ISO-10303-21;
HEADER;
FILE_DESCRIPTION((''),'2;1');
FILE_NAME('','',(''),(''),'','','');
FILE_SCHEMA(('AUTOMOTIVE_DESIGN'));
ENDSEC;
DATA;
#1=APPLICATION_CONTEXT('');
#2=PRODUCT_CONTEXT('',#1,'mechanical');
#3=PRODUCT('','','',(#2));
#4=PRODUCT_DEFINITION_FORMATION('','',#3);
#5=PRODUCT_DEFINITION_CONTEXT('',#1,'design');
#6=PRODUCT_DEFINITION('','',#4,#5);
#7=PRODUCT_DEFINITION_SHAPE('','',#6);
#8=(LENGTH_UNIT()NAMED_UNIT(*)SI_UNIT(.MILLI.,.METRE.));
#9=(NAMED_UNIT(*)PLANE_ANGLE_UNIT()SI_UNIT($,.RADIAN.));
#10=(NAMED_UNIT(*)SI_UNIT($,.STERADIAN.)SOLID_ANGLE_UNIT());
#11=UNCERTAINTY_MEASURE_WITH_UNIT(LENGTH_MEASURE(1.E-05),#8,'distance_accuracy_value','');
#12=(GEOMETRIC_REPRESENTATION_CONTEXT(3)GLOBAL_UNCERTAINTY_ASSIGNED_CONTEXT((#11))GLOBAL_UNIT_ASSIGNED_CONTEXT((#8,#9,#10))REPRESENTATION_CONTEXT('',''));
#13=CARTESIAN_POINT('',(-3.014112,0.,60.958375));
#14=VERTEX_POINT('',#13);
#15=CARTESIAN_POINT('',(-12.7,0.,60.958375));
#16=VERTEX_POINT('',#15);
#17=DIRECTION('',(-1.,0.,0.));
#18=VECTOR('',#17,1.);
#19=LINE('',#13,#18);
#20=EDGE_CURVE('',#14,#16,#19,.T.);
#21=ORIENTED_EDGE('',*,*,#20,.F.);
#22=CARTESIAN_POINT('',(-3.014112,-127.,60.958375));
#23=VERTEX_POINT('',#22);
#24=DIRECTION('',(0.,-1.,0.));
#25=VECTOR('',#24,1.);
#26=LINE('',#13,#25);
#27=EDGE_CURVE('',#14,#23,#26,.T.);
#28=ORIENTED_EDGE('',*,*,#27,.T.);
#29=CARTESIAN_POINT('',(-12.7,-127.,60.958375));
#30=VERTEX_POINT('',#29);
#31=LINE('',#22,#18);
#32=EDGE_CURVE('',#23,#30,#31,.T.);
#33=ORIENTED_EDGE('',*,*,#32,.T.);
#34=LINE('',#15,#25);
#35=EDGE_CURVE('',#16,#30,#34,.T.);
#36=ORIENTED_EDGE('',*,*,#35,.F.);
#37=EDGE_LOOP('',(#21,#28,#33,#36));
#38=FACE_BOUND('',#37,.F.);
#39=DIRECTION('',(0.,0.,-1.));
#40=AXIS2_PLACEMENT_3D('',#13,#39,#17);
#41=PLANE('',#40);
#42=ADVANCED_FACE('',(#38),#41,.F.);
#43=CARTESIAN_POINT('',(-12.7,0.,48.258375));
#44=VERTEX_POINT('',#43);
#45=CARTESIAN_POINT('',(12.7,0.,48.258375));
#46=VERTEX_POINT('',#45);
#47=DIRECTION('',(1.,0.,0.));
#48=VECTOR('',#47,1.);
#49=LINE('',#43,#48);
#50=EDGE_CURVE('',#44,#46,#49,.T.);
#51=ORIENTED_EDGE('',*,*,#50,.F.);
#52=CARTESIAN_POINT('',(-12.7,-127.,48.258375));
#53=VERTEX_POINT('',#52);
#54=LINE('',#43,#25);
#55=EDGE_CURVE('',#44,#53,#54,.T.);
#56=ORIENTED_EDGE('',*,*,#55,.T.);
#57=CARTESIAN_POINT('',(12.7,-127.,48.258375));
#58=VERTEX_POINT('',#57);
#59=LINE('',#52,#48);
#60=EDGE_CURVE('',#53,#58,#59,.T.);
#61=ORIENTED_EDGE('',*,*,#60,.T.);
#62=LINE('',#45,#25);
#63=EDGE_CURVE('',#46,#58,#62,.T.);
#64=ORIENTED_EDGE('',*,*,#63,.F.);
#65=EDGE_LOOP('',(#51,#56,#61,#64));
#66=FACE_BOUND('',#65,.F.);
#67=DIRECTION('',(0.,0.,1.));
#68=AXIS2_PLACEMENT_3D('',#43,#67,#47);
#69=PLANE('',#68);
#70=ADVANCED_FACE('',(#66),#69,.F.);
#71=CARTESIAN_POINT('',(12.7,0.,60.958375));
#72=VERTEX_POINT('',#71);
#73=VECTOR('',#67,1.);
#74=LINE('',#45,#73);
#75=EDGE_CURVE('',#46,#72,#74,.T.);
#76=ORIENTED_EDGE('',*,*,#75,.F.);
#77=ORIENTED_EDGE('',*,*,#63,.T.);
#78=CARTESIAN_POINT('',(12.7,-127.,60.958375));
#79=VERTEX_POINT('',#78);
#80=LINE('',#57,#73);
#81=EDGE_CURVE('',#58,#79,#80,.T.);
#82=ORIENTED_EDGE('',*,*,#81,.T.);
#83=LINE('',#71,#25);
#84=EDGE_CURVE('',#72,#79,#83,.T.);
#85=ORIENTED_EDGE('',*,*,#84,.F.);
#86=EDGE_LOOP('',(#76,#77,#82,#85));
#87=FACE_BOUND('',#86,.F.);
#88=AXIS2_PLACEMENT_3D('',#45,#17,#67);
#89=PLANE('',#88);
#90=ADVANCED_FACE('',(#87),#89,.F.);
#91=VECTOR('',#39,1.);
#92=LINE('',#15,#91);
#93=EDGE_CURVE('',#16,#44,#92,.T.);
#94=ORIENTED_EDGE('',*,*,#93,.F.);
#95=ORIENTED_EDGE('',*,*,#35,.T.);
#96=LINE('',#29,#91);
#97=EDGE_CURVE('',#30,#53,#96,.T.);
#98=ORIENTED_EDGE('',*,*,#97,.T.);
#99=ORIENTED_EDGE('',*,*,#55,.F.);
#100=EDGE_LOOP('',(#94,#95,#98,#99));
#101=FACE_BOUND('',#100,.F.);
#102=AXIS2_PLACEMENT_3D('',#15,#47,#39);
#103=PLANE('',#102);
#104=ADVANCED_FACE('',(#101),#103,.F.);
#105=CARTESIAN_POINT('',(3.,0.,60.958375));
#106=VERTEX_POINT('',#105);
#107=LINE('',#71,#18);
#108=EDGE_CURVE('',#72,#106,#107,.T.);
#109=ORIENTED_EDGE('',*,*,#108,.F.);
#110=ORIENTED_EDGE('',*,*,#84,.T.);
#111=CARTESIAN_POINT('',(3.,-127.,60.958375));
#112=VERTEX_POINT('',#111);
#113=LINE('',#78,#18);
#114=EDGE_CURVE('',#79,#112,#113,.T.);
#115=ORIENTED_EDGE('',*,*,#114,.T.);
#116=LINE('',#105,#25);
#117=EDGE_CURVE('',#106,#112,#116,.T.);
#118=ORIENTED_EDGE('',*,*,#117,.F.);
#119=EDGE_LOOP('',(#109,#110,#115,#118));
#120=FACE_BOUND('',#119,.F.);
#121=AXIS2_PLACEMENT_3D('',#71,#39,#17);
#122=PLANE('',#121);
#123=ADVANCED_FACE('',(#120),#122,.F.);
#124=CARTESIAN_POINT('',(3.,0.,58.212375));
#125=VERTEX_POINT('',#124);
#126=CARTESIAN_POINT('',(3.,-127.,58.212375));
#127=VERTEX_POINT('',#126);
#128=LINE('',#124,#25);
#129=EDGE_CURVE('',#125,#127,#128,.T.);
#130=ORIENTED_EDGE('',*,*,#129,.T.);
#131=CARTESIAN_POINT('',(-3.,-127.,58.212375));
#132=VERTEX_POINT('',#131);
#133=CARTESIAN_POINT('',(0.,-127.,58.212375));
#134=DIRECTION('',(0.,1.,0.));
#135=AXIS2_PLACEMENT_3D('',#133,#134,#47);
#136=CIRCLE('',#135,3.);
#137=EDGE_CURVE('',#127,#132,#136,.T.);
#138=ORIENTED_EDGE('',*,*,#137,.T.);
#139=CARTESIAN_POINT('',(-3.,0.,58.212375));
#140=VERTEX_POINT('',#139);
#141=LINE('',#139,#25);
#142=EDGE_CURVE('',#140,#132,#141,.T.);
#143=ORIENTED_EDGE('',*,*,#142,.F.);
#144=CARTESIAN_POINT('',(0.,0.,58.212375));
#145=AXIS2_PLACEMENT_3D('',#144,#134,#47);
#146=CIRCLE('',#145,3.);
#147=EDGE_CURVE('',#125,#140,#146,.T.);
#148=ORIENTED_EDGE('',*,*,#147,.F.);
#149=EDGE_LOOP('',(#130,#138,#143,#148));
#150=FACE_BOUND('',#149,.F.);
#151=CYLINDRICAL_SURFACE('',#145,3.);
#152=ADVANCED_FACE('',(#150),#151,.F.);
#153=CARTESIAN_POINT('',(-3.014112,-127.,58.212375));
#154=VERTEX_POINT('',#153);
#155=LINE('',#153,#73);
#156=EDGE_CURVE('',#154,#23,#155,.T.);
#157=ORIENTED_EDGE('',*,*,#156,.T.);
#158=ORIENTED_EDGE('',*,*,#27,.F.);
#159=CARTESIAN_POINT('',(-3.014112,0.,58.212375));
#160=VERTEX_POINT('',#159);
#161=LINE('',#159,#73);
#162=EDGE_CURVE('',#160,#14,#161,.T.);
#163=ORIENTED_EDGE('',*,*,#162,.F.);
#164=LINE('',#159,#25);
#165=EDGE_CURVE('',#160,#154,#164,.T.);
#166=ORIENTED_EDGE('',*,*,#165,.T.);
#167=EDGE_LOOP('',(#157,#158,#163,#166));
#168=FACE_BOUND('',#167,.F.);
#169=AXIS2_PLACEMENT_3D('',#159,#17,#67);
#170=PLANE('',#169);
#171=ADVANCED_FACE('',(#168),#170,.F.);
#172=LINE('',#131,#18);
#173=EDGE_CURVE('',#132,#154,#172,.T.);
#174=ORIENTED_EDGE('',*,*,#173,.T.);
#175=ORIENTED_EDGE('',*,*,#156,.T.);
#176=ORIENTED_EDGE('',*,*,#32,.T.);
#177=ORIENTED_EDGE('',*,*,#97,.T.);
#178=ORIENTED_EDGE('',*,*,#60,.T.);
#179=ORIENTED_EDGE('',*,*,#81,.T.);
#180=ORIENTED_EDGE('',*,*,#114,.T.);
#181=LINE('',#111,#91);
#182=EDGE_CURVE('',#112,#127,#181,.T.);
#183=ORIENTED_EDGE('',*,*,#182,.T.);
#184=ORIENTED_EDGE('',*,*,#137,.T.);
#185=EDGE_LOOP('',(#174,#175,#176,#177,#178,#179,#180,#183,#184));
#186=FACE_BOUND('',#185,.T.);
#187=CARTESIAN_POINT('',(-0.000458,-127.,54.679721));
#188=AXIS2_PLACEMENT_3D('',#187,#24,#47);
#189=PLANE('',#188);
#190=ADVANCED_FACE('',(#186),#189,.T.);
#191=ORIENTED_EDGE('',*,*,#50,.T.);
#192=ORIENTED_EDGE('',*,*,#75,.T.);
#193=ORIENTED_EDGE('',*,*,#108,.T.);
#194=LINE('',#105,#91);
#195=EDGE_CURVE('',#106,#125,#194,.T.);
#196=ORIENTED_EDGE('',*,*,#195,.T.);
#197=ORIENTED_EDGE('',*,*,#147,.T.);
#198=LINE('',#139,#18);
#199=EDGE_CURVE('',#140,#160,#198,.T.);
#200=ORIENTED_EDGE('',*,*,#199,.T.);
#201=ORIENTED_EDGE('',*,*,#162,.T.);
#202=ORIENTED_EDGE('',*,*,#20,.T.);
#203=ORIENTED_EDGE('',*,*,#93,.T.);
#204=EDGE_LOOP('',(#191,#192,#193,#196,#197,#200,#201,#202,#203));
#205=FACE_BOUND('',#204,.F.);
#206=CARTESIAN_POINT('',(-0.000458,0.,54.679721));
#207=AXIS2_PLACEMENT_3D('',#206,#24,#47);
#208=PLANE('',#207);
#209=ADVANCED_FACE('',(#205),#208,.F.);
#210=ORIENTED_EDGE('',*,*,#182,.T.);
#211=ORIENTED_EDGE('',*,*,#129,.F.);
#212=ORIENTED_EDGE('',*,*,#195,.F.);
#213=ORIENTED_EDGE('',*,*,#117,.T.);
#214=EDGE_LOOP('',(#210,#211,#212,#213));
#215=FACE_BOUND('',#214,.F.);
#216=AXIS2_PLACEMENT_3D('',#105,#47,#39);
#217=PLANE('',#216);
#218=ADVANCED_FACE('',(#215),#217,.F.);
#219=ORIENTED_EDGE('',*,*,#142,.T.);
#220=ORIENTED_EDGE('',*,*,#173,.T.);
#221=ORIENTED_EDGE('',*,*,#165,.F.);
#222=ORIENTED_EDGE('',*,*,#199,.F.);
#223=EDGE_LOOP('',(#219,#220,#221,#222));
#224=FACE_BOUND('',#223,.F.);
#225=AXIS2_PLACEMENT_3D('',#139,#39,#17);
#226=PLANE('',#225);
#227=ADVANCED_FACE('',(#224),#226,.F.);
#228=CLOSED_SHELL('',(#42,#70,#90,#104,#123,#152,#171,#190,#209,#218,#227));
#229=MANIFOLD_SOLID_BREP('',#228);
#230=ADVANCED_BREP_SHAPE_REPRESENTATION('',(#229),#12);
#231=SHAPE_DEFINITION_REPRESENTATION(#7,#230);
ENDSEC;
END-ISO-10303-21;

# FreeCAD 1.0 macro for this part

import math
import FreeCAD as App
import Part
import Sketcher

V = App.Vector
Q = App.Units.Quantity

doc = App.newDocument("Part")
body = doc.addObject("PartDesign::Body", "Body")

# Sketch on XZ plane
sketch1 = doc.addObject("Sketcher::SketchObject", "Sketch")
body.addObject(sketch1)
sketch1.AttachmentSupport = (doc.XZ_Plane, [""])
sketch1.MapMode = "FlatFace"
sketch1.addGeometry([
    Part.LineSegment(V(3, 60.958, 0), V(3, 58.212, 0)),  # 0
    Part.ArcOfCircle(Part.Circle(V(0, 58.212, 0), V(0, 0, 1), 3), math.radians(180), math.radians(360)),  # 1
    Part.LineSegment(V(-3, 58.212, 0), V(-3.014, 58.212, 0)),  # 2
    Part.LineSegment(V(-3.014, 58.212, 0), V(-3.014, 60.958, 0)),  # 3
    Part.LineSegment(V(-3.014, 60.958, 0), V(-12.7, 60.958, 0)),  # 4
    Part.LineSegment(V(-12.7, 60.958, 0), V(-12.7, 48.258, 0)),  # 5
    Part.LineSegment(V(-12.7, 48.258, 0), V(12.7, 48.258, 0)),  # 6
    Part.LineSegment(V(12.7, 48.258, 0), V(12.7, 60.958, 0)),  # 7
    Part.LineSegment(V(12.7, 60.958, 0), V(3, 60.958, 0)),  # 8
], False)
sketch1.addConstraint([
    Sketcher.Constraint("Tangent", 0, 2, 1, 2),
    Sketcher.Constraint("Coincident", 1, 1, 2, 1),
    Sketcher.Constraint("Coincident", 2, 2, 3, 1),
    Sketcher.Constraint("Coincident", 3, 2, 4, 1),
    Sketcher.Constraint("Coincident", 4, 2, 5, 1),
    Sketcher.Constraint("Coincident", 5, 2, 6, 1),
    Sketcher.Constraint("Coincident", 6, 2, 7, 1),
    Sketcher.Constraint("Coincident", 7, 2, 8, 1),
    Sketcher.Constraint("Coincident", 8, 2, 0, 1),
    Sketcher.Constraint("Vertical", 0),
    Sketcher.Constraint("Horizontal", 2),
    Sketcher.Constraint("Vertical", 3),
    Sketcher.Constraint("Horizontal", 4),
    Sketcher.Constraint("Vertical", 5),
    Sketcher.Constraint("Horizontal", 6),
    Sketcher.Constraint("Vertical", 7),
    Sketcher.Constraint("Horizontal", 8),
    Sketcher.Constraint("Symmetric", 0, 2, 1, 1, -2),
    Sketcher.Constraint("Symmetric", 4, 2, 7, 2, -2),
    Sketcher.Constraint("DistanceX", 6, 1, 6, 2, Q("1 in")),
    Sketcher.Constraint("DistanceY", 5, 2, 5, 1, Q("0.5 in")),
    Sketcher.Constraint("Radius", 1, Q("3 mm")),
    Sketcher.Constraint("DistanceY", 0, 2, 0, 1, Q("2.746 mm")),
    Sketcher.Constraint("DistanceX", 2, 2, 2, 1, Q("0.014112 mm")),
    Sketcher.Constraint("DistanceY", -1, 1, 1, 3, Q("58.212375 mm")),
])
pad1 = doc.addObject("PartDesign::Pad", "Pad")
body.addObject(pad1)
pad1.Profile = sketch1
pad1.Length = Q("5 in")

doc.recompute()
